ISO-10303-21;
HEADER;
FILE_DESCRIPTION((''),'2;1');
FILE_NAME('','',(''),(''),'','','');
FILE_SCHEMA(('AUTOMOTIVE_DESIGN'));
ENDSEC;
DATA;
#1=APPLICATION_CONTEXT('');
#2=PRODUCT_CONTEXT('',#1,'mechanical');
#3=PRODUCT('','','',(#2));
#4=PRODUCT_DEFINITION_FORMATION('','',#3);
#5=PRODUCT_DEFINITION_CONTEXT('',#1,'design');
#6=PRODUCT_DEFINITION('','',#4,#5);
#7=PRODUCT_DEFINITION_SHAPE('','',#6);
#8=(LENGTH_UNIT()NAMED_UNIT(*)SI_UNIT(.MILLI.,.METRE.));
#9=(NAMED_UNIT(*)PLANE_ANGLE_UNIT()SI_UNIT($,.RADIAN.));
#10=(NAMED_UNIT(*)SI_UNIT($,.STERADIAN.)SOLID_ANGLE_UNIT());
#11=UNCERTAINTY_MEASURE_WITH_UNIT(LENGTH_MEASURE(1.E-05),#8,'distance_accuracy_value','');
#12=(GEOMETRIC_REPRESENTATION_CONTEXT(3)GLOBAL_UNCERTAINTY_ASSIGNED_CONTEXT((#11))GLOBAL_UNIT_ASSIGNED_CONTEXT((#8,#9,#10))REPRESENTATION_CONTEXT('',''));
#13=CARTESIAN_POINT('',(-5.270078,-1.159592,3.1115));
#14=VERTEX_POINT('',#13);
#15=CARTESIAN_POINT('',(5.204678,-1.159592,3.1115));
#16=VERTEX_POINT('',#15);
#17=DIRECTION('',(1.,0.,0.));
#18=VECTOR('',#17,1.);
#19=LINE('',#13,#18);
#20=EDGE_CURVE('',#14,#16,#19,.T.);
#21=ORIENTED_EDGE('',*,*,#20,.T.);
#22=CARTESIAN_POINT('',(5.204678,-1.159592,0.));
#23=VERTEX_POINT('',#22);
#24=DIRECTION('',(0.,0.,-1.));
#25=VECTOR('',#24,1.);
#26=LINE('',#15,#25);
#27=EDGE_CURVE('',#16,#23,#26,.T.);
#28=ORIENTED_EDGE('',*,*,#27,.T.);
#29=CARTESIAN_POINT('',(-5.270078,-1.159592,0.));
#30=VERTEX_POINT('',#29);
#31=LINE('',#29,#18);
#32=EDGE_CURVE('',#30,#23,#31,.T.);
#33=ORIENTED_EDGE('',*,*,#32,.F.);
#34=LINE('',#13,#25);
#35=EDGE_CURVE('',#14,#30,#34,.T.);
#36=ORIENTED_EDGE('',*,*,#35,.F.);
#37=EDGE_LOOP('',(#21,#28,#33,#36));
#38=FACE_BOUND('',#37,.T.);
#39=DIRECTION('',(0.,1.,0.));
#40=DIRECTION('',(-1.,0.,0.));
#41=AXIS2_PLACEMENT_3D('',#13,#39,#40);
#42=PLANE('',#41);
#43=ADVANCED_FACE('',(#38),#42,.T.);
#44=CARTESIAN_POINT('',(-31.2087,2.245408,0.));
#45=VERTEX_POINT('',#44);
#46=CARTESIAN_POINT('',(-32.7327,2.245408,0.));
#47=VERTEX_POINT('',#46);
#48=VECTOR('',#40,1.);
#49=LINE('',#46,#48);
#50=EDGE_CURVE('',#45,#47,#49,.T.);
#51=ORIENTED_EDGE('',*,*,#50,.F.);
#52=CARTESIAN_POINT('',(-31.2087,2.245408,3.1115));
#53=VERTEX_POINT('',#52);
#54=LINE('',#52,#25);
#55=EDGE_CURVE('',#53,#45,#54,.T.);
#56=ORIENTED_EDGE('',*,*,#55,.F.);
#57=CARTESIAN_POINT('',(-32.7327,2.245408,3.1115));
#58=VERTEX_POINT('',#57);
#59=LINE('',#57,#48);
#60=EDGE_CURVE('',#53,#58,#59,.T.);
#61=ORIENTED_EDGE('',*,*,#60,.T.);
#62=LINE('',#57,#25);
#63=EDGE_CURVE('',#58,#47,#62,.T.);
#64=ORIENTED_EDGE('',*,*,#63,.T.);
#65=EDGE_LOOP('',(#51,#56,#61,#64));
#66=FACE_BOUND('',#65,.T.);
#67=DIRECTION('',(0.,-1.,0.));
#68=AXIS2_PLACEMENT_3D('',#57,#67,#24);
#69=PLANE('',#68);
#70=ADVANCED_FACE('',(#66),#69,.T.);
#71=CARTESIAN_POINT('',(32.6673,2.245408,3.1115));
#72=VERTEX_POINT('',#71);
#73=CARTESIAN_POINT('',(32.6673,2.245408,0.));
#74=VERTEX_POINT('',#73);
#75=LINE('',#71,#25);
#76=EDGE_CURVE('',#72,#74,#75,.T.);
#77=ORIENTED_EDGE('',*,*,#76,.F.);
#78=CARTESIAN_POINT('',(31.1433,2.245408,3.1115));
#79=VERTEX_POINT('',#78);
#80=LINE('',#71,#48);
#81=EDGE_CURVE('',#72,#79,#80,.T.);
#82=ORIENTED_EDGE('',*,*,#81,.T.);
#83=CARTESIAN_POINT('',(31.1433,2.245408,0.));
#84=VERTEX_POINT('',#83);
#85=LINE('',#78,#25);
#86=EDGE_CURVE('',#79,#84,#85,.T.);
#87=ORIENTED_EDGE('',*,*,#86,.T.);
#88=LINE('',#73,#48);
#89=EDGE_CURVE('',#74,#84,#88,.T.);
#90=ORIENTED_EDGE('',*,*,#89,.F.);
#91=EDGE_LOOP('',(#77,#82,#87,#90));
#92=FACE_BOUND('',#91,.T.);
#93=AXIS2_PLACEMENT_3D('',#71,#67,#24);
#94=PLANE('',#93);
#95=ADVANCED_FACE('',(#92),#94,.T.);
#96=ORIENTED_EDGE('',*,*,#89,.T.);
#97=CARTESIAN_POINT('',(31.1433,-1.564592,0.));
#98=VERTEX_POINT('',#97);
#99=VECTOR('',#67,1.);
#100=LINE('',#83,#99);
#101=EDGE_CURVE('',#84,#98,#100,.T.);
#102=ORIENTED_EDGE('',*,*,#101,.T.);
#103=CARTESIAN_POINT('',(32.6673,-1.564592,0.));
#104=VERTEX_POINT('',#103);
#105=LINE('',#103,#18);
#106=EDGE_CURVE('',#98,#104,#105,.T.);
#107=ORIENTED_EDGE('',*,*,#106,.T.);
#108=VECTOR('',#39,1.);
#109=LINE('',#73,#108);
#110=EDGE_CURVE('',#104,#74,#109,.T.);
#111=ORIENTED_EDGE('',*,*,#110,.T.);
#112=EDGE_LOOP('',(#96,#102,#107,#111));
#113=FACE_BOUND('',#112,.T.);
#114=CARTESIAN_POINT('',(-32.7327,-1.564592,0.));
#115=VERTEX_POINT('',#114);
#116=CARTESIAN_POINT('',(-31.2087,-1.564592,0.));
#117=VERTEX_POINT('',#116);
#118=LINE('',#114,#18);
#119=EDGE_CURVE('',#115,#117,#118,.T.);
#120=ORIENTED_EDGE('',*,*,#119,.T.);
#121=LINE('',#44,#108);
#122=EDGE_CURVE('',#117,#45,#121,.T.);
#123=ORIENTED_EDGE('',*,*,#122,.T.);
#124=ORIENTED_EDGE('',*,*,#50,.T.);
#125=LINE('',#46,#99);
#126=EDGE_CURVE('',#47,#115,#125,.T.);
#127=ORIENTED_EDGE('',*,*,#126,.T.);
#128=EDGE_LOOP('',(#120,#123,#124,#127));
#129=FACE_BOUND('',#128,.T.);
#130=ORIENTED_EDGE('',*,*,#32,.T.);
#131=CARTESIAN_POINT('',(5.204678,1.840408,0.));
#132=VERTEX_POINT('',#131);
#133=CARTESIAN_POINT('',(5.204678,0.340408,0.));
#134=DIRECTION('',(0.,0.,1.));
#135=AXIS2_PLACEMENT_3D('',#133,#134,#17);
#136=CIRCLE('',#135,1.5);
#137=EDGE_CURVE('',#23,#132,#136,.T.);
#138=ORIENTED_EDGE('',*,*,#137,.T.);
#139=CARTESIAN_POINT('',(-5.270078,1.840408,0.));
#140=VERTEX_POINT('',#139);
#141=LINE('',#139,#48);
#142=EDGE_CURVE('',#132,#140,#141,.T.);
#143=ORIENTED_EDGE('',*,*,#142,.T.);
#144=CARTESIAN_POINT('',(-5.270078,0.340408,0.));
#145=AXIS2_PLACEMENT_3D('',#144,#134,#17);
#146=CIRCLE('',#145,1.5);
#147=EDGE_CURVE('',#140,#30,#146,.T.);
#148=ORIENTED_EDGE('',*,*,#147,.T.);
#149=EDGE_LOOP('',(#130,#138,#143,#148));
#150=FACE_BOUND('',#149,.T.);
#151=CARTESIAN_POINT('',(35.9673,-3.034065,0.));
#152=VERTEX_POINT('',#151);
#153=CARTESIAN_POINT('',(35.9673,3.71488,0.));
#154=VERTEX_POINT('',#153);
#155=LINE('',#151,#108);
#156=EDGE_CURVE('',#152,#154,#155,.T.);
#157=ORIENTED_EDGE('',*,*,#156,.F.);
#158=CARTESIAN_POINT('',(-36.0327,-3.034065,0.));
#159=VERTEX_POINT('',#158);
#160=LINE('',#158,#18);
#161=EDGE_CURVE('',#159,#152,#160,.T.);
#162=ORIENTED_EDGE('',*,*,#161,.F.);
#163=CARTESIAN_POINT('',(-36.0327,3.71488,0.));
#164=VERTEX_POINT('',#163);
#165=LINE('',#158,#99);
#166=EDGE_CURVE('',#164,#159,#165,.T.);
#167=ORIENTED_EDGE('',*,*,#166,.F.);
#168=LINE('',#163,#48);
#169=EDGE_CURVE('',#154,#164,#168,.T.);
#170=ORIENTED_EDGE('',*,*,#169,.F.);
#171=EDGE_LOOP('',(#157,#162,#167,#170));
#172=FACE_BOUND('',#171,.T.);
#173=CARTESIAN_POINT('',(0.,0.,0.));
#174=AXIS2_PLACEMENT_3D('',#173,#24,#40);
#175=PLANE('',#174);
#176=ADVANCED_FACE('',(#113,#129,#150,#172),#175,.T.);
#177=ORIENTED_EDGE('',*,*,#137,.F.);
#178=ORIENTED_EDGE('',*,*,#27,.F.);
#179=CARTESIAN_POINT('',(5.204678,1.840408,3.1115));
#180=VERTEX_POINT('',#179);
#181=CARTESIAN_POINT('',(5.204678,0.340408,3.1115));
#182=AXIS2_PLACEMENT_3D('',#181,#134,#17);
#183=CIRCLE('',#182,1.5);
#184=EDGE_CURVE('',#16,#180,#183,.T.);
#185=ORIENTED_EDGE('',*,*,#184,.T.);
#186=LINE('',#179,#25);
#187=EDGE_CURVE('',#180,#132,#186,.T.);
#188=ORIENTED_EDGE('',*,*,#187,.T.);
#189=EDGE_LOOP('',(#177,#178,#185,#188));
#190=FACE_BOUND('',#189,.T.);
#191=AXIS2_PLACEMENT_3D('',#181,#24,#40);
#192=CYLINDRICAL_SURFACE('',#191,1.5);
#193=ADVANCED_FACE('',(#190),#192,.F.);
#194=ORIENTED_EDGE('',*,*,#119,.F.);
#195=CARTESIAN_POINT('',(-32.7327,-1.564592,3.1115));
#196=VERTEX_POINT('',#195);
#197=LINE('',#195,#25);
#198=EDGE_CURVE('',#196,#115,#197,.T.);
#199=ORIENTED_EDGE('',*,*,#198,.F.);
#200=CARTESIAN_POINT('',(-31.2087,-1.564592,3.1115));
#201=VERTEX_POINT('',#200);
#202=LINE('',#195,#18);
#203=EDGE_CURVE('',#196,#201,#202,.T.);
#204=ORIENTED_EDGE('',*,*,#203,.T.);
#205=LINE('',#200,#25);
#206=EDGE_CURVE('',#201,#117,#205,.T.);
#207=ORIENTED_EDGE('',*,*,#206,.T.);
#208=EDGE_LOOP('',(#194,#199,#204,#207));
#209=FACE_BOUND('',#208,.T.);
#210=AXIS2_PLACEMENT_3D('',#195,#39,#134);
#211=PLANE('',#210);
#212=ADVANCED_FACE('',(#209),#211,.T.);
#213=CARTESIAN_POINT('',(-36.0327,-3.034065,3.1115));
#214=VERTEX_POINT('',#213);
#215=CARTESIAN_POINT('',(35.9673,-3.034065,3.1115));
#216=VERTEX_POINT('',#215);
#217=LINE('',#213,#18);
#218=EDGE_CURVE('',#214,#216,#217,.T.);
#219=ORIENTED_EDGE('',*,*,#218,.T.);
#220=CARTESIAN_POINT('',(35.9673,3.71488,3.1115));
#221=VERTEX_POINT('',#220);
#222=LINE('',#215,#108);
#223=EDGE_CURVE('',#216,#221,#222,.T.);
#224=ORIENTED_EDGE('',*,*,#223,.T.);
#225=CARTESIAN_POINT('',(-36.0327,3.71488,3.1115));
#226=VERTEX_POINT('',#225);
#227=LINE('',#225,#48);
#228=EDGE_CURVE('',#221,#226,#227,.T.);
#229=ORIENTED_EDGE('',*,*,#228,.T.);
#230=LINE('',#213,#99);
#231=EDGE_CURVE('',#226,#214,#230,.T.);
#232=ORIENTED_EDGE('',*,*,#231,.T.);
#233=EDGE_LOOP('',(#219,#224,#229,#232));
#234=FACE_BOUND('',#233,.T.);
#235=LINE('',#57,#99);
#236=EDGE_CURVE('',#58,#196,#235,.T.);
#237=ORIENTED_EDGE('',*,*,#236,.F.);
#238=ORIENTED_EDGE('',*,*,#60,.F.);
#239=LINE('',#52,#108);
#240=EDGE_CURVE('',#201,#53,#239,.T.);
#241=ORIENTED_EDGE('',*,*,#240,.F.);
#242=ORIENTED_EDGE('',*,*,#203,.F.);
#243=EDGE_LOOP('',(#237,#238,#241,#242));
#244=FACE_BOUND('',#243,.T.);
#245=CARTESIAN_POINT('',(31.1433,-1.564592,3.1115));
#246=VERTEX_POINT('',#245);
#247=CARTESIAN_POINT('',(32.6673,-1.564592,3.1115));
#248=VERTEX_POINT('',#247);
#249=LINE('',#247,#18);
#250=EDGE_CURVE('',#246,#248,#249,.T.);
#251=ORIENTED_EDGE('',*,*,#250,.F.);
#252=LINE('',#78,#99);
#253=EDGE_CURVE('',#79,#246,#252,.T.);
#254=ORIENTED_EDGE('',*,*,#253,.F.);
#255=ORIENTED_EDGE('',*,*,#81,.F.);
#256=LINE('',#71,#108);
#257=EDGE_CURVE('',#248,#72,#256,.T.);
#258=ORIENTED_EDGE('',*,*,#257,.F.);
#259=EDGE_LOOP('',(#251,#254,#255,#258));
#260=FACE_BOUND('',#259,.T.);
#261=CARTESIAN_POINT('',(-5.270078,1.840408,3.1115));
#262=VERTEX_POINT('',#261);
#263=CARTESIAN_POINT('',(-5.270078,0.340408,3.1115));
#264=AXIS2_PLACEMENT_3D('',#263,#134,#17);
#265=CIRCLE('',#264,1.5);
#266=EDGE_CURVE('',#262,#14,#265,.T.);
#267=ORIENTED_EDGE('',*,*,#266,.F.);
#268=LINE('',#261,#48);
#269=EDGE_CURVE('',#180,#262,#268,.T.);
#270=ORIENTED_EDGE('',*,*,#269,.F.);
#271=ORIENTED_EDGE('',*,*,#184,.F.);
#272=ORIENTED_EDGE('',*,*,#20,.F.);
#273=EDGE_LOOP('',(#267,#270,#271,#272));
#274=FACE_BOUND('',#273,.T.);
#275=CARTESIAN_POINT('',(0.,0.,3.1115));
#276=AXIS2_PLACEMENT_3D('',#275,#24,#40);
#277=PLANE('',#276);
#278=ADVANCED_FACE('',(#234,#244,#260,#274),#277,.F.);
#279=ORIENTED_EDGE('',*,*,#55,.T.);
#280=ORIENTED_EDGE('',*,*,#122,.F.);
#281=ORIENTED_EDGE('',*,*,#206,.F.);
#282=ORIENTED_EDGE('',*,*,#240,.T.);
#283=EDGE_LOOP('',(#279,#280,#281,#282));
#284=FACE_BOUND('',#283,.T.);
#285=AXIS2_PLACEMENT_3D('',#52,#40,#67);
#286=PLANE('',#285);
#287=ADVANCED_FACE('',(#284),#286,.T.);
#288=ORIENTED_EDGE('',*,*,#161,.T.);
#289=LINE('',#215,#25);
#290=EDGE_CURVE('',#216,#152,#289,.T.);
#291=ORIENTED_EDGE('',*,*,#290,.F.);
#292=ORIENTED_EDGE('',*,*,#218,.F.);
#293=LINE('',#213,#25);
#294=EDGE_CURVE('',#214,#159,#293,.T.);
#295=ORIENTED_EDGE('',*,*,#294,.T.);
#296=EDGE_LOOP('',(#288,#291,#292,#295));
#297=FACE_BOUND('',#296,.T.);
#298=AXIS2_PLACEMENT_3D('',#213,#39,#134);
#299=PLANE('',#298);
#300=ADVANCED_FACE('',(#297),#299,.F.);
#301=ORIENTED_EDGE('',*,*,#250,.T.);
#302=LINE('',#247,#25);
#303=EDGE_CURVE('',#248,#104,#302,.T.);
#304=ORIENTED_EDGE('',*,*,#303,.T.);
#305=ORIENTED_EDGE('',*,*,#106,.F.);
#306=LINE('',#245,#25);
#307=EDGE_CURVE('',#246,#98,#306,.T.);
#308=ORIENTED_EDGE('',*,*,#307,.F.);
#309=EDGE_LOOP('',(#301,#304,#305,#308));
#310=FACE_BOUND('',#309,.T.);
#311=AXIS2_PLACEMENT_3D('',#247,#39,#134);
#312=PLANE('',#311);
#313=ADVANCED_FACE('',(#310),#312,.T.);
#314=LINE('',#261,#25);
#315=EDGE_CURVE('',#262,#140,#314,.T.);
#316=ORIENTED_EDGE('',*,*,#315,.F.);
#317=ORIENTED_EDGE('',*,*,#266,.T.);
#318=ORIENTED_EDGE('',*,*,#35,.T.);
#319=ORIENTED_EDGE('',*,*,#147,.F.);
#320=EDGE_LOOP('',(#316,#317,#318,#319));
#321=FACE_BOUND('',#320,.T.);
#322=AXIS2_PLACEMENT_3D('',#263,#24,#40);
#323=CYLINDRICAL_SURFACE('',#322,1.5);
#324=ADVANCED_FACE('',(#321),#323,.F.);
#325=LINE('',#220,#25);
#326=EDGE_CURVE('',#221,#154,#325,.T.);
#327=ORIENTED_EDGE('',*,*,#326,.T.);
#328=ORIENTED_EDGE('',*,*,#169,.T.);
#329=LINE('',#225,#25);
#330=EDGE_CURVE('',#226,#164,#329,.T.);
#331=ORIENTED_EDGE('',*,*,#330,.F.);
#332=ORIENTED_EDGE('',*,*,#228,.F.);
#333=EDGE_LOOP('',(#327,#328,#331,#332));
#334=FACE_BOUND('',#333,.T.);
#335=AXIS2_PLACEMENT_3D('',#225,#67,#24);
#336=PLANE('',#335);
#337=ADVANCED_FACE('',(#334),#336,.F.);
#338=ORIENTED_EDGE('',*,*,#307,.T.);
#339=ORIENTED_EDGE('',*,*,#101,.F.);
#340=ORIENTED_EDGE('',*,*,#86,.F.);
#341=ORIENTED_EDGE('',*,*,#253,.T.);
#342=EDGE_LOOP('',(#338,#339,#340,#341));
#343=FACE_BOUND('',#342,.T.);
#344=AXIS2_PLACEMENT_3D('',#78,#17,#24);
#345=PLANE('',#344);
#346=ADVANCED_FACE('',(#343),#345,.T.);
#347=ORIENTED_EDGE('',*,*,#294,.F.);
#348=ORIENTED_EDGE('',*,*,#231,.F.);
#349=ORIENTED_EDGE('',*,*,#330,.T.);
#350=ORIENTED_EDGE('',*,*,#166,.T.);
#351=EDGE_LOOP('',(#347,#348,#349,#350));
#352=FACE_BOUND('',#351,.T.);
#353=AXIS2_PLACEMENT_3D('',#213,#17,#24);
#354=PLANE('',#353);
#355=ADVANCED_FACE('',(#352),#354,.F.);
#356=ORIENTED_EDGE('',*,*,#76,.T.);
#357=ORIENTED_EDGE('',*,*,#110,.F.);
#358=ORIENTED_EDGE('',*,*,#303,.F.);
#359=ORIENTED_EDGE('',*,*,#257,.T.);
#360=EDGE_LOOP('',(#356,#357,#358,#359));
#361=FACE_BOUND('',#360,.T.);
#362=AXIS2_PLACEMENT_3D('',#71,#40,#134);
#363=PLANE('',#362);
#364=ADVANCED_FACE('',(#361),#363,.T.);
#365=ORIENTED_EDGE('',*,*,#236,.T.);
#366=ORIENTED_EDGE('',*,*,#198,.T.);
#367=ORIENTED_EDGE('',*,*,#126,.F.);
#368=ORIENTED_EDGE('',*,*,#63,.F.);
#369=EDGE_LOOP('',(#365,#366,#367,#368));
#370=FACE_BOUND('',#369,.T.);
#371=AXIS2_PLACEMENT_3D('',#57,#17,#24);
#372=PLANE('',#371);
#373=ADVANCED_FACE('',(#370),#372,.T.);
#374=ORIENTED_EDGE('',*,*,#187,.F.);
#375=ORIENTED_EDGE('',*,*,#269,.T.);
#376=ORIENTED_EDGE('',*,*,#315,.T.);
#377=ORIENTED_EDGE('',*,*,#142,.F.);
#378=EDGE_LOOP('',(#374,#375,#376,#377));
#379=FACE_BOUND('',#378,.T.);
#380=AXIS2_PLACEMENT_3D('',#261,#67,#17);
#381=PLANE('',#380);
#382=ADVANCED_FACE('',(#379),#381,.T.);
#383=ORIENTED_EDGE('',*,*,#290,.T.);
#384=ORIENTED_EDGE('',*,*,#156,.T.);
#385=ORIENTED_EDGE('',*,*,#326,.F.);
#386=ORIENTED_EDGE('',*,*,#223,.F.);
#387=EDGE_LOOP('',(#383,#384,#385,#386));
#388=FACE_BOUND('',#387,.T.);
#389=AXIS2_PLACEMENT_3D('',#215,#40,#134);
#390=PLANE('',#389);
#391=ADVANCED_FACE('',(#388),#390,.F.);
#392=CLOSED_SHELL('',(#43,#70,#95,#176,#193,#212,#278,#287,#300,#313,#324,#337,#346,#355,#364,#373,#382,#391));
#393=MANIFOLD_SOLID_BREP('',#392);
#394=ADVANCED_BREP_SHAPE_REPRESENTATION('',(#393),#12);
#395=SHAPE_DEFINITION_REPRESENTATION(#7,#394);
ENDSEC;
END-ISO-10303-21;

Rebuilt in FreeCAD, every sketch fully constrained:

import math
import FreeCAD as App
import Part
import Sketcher

V = App.Vector


def add_polygon(sketch, points):
    """Adds a closed chain of lines whose ends are joined by coincident constraints."""
    first, n = sketch.GeometryCount, len(points)
    for a, b in zip(points, points[1:] + points[:1]):
        sketch.addGeometry(Part.LineSegment(App.Vector(*a, 0), App.Vector(*b, 0)), False)
    for i in range(n):
        sketch.addConstraint(Sketcher.Constraint("Coincident", first + i, 2, first + (i + 1) % n, 1))

doc = App.newDocument("Part")
body = doc.addObject("PartDesign::Body", "Body")

sketch1 = body.newObject("Sketcher::SketchObject", "Sketch")
sketch1.AttachmentSupport = (doc.getObject("XY_Plane"), [""])
sketch1.MapMode = "FlatFace"
add_polygon(sketch1, [(-36, 3.7), (-36, -3), (36, -3), (36, 3.7)])
add_polygon(sketch1, [(-31.2, -1.6), (-32.7, -1.6), (-32.7, 2.2), (-31.2, 2.2)])
sketch1.addGeometry(Part.ArcOfCircle(Part.Circle(V(-5.3, 0.3, 0), V(0, 0, 1), 1.5), math.radians(90), math.radians(270)), False)
sketch1.addGeometry(Part.LineSegment(V(-5.3, 1.8, 0), V(5.2, 1.8, 0)), False)
sketch1.addGeometry(Part.ArcOfCircle(Part.Circle(V(5.2, 0.3, 0), V(0, 0, 1), 1.5), math.radians(-90), math.radians(90)), False)
sketch1.addGeometry(Part.LineSegment(V(5.2, -1.2, 0), V(-5.3, -1.2, 0)), False)
add_polygon(sketch1, [(32.7, -1.6), (31.1, -1.6), (31.1, 2.2), (32.7, 2.2)])
sketch1.addConstraint([
    Sketcher.Constraint("Tangent", 8, 1, 9, 1),
    Sketcher.Constraint("Tangent", 9, 2, 10, 2),
    Sketcher.Constraint("Tangent", 10, 1, 11, 1),
    Sketcher.Constraint("Tangent", 11, 2, 8, 2),
    Sketcher.Constraint("Vertical", 0),
    Sketcher.Constraint("Horizontal", 1),
    Sketcher.Constraint("Vertical", 2),
    Sketcher.Constraint("Horizontal", 3),
    Sketcher.Constraint("Horizontal", 4),
    Sketcher.Constraint("Vertical", 5),
    Sketcher.Constraint("Horizontal", 6),
    Sketcher.Constraint("Vertical", 7),
    Sketcher.Constraint("Horizontal", 9),
    Sketcher.Constraint("Horizontal", 11),
    Sketcher.Constraint("Horizontal", 12),
    Sketcher.Constraint("Vertical", 13),
    Sketcher.Constraint("Horizontal", 14),
    Sketcher.Constraint("Vertical", 15),
    Sketcher.Constraint("Horizontal", 7, 2, 12, 2),
    Sketcher.Constraint("Horizontal", 6, 2, 13, 2),
    Sketcher.Constraint("Equal", 6, 12),
    Sketcher.Constraint("Radius", 8, 1.5),
    Sketcher.Constraint("DistanceX", 1, 1, 1, 2, 72.0),
    Sketcher.Constraint("DistanceY", 5, 1, 5, 2, 3.81),
    Sketcher.Constraint("DistanceX", 0, 2, 4, 2, 3.3),
    Sketcher.Constraint("DistanceX", 14, 2, 2, 2, 3.3),
    Sketcher.Constraint("DistanceX", 4, 2, 4, 1, 1.524),
    Sketcher.Constraint("DistanceY", 4, 2, 8, 3, 1.905),
    Sketcher.Constraint("DistanceX", 0, 2, -1, 1, 36.0327),
    Sketcher.Constraint("DistanceX", 9, 1, 9, 2, 10.474755),
    Sketcher.Constraint("DistanceY", 0, 2, 0, 1, 6.748945),
    Sketcher.Constraint("DistanceY", -1, 1, 2, 2, 3.71488),
    Sketcher.Constraint("DistanceX", 8, 3, -1, 1, 5.270078),
    Sketcher.Constraint("DistanceY", -1, 1, 8, 3, 0.340408),
])
pad1 = body.newObject("PartDesign::Pad", "Pad")
pad1.Profile = sketch1
pad1.Length = 3.1115

doc.recompute()
